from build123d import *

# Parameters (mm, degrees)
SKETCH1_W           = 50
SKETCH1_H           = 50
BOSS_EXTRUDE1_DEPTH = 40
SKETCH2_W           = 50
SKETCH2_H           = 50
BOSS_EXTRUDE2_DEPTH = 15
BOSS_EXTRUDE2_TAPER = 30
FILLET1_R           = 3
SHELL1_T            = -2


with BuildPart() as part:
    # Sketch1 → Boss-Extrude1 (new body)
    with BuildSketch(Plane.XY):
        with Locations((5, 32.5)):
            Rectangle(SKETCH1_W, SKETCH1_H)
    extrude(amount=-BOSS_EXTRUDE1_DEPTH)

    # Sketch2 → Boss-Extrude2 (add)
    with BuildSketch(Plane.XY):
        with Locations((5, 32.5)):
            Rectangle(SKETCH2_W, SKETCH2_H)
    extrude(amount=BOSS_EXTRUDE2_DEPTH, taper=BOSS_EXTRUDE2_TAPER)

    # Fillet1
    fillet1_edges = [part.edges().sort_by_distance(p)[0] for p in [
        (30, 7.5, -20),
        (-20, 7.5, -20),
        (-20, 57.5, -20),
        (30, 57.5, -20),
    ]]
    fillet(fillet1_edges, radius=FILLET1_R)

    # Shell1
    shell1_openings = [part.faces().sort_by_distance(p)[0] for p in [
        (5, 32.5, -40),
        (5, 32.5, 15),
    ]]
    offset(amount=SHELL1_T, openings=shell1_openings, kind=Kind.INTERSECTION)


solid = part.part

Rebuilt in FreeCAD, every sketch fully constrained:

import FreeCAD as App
import Part
import Sketcher


def edges_at(feature, points):
    """Names of the edges that pass closest to the given points."""
    edges = feature.Shape.Edges
    near = lambda p: min(range(len(edges)), key=lambda i: edges[i].distToShape(Part.Vertex(*p))[0])
    return sorted({f"Edge{near(p) + 1}" for p in points})


def faces_at(feature, points):
    """Names of the faces that lie closest to the given points."""
    faces = feature.Shape.Faces
    near = lambda p: min(range(len(faces)), key=lambda i: faces[i].distToShape(Part.Vertex(*p))[0])
    return sorted({f"Face{near(p) + 1}" for p in points})


def add_polygon(sketch, points):
    """Adds a closed chain of lines whose ends are joined by coincident constraints."""
    first, n = sketch.GeometryCount, len(points)
    for a, b in zip(points, points[1:] + points[:1]):
        sketch.addGeometry(Part.LineSegment(App.Vector(*a, 0), App.Vector(*b, 0)), False)
    for i in range(n):
        sketch.addConstraint(Sketcher.Constraint("Coincident", first + i, 2, first + (i + 1) % n, 1))

doc = App.newDocument("Part")
body = doc.addObject("PartDesign::Body", "Body")

sketch1 = body.newObject("Sketcher::SketchObject", "Sketch")
sketch1.AttachmentSupport = (doc.getObject("XY_Plane"), [""])
sketch1.MapMode = "FlatFace"
add_polygon(sketch1, [(-20, 58), (-20, 8), (30, 8), (30, 58)])
sketch1.addConstraint([
    Sketcher.Constraint("Vertical", 0),
    Sketcher.Constraint("Horizontal", 1),
    Sketcher.Constraint("Vertical", 2),
    Sketcher.Constraint("Horizontal", 3),
    Sketcher.Constraint("Equal", 3, 0),
    Sketcher.Constraint("DistanceX", 1, 1, 1, 2, 50.0),
    Sketcher.Constraint("DistanceX", 0, 2, -1, 1, 20.0),
    Sketcher.Constraint("DistanceY", -1, 1, 0, 2, 7.5),
])
pad1 = body.newObject("PartDesign::Pad", "Pad")
pad1.Profile = sketch1
pad1.Length = 40
pad1.Reversed = True

sketch2 = body.newObject("Sketcher::SketchObject", "Sketch001")
sketch2.AttachmentSupport = (doc.getObject("XY_Plane"), [""])
sketch2.MapMode = "FlatFace"
add_polygon(sketch2, [(-20, 58), (-20, 8), (30, 8), (30, 58)])
sketch2.addConstraint([
    Sketcher.Constraint("Vertical", 0),
    Sketcher.Constraint("Horizontal", 1),
    Sketcher.Constraint("Vertical", 2),
    Sketcher.Constraint("Horizontal", 3),
    Sketcher.Constraint("Equal", 3, 0),
    Sketcher.Constraint("DistanceX", 1, 1, 1, 2, 50.0),
    Sketcher.Constraint("DistanceX", 0, 2, -1, 1, 20.0),
    Sketcher.Constraint("DistanceY", -1, 1, 0, 2, 7.5),
])
pad2 = body.newObject("PartDesign::Pad", "Pad001")
pad2.Profile = sketch2
pad2.Length = 15
pad2.TaperAngle = -30
doc.recompute()

fillet = body.newObject("PartDesign::Fillet", "Fillet")
fillet.Base = (pad2, edges_at(pad2, [
    (30, 7.5, -20),
    (-20, 7.5, -20),
    (-20, 57.5, -20),
    (30, 57.5, -20),
]))
fillet.Radius = 3
doc.recompute()

thickness = body.newObject("PartDesign::Thickness", "Thickness")
thickness.Base = (fillet, faces_at(fillet, [(5, 32.5, -40), (5, 32.5, 15)]))
thickness.Value = 2
thickness.Reversed = True
thickness.Join = "Intersection"

doc.recompute()
